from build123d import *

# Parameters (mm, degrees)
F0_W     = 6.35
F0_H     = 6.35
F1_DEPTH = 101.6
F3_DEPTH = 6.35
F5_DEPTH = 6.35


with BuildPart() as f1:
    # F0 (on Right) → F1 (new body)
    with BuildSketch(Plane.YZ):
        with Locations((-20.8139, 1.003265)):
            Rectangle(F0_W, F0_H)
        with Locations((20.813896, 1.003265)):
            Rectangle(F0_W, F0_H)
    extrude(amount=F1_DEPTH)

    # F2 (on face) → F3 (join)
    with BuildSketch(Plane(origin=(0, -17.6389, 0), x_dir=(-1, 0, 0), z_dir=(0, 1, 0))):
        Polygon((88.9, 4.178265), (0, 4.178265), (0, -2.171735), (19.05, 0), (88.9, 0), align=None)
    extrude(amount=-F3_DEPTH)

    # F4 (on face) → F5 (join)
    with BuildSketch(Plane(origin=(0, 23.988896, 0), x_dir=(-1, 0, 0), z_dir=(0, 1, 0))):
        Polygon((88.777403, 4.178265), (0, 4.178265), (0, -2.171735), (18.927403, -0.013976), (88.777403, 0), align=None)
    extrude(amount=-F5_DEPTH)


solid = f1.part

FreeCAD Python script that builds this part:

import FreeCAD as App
import Part
import Sketcher

V = App.Vector
Q = App.Units.Quantity


def add_polygon(sketch, points):
    """Adds a closed chain of lines whose ends are joined by coincident constraints."""
    first, n = sketch.GeometryCount, len(points)
    for a, b in zip(points, points[1:] + points[:1]):
        sketch.addGeometry(Part.LineSegment(App.Vector(*a, 0), App.Vector(*b, 0)), False)
    for i in range(n):
        sketch.addConstraint(Sketcher.Constraint("Coincident", first + i, 2, first + (i + 1) % n, 1))

doc = App.newDocument("Part")
body = doc.addObject("PartDesign::Body", "Body")
body.AllowCompound = True

sketch1 = body.newObject("Sketcher::SketchObject", "Sketch")
sketch1.AttachmentSupport = (doc.getObject("YZ_Plane"), [""])
sketch1.MapMode = "FlatFace"
add_polygon(sketch1, [(-23.9889, 4.178265), (-23.9889, -2.171735), (-17.6389, -2.171735), (-17.6389, 4.178265)])
add_polygon(sketch1, [(17.638896, 4.178265), (17.638896, -2.171735), (23.988896, -2.171735), (23.988896, 4.178265)])
sketch1.addConstraint(Sketcher.Constraint("Vertical", 0))
sketch1.addConstraint(Sketcher.Constraint("Horizontal", 1))
sketch1.addConstraint(Sketcher.Constraint("Vertical", 2))
sketch1.addConstraint(Sketcher.Constraint("Horizontal", 3))
sketch1.addConstraint(Sketcher.Constraint("Vertical", 4))
sketch1.addConstraint(Sketcher.Constraint("Horizontal", 5))
sketch1.addConstraint(Sketcher.Constraint("Vertical", 6))
sketch1.addConstraint(Sketcher.Constraint("Horizontal", 7))
sketch1.addConstraint(Sketcher.Constraint("Symmetric", 1, 2, 4, 2, -2))
sketch1.addConstraint(Sketcher.Constraint("Symmetric", 3, 2, 6, 2, -2))
sketch1.addConstraint(Sketcher.Constraint("Equal", 7, 0))
sketch1.addConstraint(Sketcher.Constraint("DistanceX", 1, 1, 1, 2, Q("0.25 in")))
sketch1.addConstraint(Sketcher.Constraint("DistanceX", 0, 2, -1, 1, 23.9889))
sketch1.addConstraint(Sketcher.Constraint("DistanceY", 0, 2, -1, 1, 2.171735))
pad1 = body.newObject("PartDesign::Pad", "Pad")
pad1.Profile = sketch1
pad1.Length = Q("4 in")

sketch2 = body.newObject("Sketcher::SketchObject", "Sketch001")
sketch2.AttachmentSupport = (doc.getObject("XZ_Plane"), [""])
sketch2.MapMode = "FlatFace"
sketch2.AttachmentOffset = App.Placement(V(0, 0, 17.6389), App.Rotation())
add_polygon(sketch2, [(-88.9, 4.178265), (0, 4.178265), (0, -2.171735), (-19.05, 0), (-88.9, 0)])
sketch2.addConstraint(Sketcher.Constraint("Horizontal", 0))
sketch2.addConstraint(Sketcher.Constraint("Vertical", 1))
sketch2.addConstraint(Sketcher.Constraint("Horizontal", 3))
sketch2.addConstraint(Sketcher.Constraint("Vertical", 4))
sketch2.addConstraint(Sketcher.Constraint("PointOnObject", 0, 2, -2))
sketch2.addConstraint(Sketcher.Constraint("PointOnObject", 2, 2, -1))
sketch2.addConstraint(Sketcher.Constraint("DistanceX", 0, 1, 0, 2, Q("3.5 in")))
sketch2.addConstraint(Sketcher.Constraint("DistanceX", 3, 2, 3, 1, Q("2.75 in")))
sketch2.addConstraint(Sketcher.Constraint("DistanceY", 1, 2, 1, 1, Q("0.25 in")))
sketch2.addConstraint(Sketcher.Constraint("Distance", 2, 19.173391))
pad2 = body.newObject("PartDesign::Pad", "Pad001")
pad2.Profile = sketch2
pad2.Length = Q("0.25 in")

sketch3 = body.newObject("Sketcher::SketchObject", "Sketch002")
sketch3.AttachmentSupport = (doc.getObject("XZ_Plane"), [""])
sketch3.MapMode = "FlatFace"
sketch3.AttachmentOffset = App.Placement(V(0, 0, -23.988896), App.Rotation())
add_polygon(sketch3, [(-88.777403, 4.178265), (0, 4.178265), (0, -2.171735), (-18.927403, -0.013976), (-88.777403, 0)])
sketch3.addConstraint(Sketcher.Constraint("Horizontal", 0))
sketch3.addConstraint(Sketcher.Constraint("Vertical", 1))
sketch3.addConstraint(Sketcher.Constraint("Vertical", 4))
sketch3.addConstraint(Sketcher.Constraint("PointOnObject", 0, 2, -2))
sketch3.addConstraint(Sketcher.Constraint("PointOnObject", 3, 2, -1))
sketch3.addConstraint(Sketcher.Constraint("DistanceY", 1, 2, 1, 1, Q("0.25 in")))
sketch3.addConstraint(Sketcher.Constraint("Distance", 2, Q("0.75 in")))
sketch3.addConstraint(Sketcher.Constraint("Distance", 3, Q("2.7500001 in")))
sketch3.addConstraint(Sketcher.Constraint("DistanceX", 0, 1, 0, 2, 88.777403))
sketch3.addConstraint(Sketcher.Constraint("DistanceY", 4, 1, 4, 2, 4.178265))
pad3 = body.newObject("PartDesign::Pad", "Pad002")
pad3.Profile = sketch3
pad3.Length = Q("0.25 in")

doc.recompute()
